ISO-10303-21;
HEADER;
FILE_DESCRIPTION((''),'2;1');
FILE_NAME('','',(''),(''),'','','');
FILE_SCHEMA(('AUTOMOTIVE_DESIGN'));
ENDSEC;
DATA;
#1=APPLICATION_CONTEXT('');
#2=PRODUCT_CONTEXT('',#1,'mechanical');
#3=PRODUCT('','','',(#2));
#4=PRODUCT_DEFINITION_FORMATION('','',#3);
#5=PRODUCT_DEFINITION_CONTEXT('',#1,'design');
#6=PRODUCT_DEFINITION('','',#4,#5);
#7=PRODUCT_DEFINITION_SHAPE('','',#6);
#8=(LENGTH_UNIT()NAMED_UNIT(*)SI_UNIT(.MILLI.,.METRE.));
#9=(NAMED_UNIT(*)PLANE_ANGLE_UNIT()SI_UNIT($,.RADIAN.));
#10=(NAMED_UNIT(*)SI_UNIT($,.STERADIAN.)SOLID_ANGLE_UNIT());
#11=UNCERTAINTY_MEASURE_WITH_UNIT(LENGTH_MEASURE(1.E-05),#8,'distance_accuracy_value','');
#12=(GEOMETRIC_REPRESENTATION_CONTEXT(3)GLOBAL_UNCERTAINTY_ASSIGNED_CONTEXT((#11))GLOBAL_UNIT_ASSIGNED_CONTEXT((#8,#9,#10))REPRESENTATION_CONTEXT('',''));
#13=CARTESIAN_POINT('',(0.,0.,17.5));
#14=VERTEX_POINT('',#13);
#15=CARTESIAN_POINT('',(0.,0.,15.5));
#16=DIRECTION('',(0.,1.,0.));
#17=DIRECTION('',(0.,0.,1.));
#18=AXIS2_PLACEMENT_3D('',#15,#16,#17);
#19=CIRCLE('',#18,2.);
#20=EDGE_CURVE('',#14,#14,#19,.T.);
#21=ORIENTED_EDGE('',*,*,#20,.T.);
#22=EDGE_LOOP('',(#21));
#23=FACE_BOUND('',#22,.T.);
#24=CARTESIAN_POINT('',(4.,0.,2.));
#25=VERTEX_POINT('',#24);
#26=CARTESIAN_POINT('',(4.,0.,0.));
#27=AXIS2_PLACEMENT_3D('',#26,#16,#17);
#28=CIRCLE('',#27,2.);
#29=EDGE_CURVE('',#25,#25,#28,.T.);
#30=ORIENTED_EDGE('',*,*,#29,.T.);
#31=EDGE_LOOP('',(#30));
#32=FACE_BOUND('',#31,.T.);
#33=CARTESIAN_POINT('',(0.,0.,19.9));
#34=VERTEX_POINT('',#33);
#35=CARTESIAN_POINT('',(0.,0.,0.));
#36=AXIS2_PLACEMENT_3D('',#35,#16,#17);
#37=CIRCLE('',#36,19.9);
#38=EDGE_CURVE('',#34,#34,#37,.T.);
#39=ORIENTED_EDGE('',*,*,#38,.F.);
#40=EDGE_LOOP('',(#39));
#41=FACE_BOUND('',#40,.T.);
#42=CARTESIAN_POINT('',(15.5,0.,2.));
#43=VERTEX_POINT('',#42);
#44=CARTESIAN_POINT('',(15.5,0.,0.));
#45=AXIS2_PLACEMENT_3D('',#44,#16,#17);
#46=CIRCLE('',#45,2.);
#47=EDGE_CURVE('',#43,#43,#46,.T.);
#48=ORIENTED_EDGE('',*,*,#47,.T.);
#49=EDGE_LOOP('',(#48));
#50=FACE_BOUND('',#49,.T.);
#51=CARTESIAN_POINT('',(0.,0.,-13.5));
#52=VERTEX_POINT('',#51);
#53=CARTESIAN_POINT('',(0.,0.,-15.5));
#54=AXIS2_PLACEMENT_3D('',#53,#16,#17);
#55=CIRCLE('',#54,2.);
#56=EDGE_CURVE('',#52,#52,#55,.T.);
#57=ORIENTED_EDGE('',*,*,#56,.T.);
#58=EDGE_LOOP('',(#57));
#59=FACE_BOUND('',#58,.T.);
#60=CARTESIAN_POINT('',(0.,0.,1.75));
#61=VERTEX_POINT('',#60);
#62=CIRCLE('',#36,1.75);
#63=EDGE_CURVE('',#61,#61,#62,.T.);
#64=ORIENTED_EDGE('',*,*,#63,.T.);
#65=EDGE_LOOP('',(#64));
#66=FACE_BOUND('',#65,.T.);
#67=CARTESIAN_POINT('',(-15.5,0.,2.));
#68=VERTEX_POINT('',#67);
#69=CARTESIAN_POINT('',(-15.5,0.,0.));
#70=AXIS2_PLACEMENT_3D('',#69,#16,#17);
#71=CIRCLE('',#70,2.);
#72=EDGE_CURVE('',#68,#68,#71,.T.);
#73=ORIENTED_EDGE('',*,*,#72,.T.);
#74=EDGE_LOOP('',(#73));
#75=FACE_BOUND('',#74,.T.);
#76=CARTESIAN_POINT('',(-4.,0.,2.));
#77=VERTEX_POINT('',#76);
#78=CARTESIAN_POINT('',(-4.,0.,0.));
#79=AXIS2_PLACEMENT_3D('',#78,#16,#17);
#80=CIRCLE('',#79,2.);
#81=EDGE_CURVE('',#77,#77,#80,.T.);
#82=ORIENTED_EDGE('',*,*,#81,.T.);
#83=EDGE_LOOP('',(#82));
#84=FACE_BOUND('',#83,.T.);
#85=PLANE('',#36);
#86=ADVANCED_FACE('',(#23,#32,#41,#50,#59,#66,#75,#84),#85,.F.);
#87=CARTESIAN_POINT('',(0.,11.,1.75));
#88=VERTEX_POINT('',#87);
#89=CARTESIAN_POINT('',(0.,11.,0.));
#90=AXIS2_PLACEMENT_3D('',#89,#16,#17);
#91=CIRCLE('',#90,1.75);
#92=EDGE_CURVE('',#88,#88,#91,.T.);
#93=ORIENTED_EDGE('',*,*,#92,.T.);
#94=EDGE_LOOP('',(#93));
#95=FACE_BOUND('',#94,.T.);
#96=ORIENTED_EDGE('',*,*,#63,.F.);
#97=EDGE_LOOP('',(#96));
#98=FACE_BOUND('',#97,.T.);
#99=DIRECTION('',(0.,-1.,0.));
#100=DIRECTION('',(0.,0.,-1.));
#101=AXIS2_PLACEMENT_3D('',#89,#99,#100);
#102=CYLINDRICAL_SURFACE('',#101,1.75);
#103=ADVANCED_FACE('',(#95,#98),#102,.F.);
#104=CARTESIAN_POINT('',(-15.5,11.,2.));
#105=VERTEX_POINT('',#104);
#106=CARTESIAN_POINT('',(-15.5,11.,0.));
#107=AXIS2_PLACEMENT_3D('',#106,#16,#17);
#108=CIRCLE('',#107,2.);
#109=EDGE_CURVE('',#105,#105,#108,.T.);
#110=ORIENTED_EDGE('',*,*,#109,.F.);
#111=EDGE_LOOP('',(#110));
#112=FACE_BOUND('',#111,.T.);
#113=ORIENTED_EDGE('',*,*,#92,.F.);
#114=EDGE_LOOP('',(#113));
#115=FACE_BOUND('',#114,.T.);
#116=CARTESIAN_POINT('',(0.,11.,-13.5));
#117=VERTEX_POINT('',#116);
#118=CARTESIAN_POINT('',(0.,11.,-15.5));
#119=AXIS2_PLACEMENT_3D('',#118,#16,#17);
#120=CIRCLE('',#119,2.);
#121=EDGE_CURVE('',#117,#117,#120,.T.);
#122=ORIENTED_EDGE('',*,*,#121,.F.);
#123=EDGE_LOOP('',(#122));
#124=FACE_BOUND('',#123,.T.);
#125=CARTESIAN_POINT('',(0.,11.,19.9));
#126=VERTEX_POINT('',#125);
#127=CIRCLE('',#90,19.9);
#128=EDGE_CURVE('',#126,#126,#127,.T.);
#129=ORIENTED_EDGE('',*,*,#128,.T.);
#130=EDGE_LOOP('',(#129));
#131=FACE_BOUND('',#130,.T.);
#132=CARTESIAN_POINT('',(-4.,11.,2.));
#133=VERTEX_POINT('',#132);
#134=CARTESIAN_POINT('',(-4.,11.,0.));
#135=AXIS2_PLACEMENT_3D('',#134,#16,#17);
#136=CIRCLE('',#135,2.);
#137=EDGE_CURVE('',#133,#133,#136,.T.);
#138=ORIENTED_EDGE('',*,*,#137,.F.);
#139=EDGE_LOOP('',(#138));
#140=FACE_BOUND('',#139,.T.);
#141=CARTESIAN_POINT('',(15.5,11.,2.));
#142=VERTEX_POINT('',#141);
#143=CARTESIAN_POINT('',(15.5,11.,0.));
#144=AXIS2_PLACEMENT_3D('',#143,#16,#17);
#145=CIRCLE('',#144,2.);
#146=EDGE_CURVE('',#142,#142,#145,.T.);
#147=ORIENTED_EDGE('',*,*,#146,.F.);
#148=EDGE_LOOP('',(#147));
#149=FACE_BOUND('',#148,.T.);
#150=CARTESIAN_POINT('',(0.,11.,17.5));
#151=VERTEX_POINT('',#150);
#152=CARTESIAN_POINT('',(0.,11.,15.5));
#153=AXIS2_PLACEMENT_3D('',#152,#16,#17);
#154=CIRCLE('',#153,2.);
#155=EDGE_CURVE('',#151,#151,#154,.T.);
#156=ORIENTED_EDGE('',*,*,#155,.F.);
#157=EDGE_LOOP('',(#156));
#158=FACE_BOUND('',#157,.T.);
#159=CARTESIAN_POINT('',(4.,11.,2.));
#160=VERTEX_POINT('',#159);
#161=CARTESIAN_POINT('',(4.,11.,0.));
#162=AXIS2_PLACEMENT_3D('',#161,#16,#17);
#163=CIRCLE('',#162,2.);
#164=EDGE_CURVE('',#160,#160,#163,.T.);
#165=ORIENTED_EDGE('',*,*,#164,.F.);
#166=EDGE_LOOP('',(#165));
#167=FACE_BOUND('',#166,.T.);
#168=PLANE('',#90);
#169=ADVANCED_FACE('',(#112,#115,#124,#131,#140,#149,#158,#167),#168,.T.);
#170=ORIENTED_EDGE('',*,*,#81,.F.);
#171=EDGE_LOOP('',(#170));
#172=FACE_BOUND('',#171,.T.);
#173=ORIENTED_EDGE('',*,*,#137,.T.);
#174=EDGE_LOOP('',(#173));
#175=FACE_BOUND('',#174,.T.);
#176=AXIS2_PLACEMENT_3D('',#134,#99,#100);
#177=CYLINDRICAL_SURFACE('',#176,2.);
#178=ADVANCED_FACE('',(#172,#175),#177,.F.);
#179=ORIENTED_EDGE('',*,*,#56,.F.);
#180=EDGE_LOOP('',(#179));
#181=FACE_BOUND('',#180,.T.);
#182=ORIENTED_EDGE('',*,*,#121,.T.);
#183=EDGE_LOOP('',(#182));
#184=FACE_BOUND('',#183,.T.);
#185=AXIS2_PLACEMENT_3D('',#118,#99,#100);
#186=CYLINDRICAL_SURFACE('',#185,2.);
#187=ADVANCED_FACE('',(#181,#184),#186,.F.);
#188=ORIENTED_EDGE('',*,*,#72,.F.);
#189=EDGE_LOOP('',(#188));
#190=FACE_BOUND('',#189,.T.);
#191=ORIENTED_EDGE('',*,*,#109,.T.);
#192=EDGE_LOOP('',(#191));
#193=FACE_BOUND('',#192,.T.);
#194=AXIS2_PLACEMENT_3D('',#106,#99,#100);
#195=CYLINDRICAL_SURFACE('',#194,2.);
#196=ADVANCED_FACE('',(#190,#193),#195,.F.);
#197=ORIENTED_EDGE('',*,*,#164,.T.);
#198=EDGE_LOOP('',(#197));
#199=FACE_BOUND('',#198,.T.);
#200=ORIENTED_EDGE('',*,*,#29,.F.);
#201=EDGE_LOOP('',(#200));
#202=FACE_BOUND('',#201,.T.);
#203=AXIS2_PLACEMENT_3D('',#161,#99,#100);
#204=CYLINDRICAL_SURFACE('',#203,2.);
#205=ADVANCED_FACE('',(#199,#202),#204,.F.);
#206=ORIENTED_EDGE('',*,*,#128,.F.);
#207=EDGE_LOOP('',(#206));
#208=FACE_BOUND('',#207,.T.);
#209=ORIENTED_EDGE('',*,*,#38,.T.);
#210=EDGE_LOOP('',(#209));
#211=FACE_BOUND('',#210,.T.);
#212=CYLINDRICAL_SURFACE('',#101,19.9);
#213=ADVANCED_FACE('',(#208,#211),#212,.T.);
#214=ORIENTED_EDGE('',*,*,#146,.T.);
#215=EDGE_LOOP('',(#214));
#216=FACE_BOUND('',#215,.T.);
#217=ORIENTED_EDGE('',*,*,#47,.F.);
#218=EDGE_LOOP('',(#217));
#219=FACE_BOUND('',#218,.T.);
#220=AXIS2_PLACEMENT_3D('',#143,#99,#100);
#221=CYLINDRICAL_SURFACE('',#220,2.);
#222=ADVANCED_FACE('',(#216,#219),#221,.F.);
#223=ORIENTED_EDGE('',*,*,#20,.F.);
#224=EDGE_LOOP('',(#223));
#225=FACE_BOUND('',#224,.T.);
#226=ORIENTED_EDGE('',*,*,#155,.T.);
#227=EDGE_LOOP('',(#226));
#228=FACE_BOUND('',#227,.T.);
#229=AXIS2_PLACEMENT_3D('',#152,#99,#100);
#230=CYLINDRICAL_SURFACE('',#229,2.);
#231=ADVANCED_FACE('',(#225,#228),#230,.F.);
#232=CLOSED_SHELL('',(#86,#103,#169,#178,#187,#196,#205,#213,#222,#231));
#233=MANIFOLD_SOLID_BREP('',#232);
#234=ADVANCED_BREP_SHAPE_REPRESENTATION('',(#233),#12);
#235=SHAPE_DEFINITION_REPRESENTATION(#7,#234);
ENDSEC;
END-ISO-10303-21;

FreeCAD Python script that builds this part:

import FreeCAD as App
import Part
import Sketcher

V = App.Vector

doc = App.newDocument("Part")
body = doc.addObject("PartDesign::Body", "Body")

sketch1 = doc.addObject("Sketcher::SketchObject", "Sketch")
body.addObject(sketch1)
sketch1.AttachmentSupport = (doc.XZ_Plane, [""])
sketch1.MapMode = "FlatFace"
sketch1.addGeometry(Part.Circle(V(0, 0, 0), V(0, 0, 1), 19.9), False)
sketch1.addGeometry(Part.Circle(V(0, -15.5, 0), V(0, 0, 1), 2), False)
sketch1.addGeometry(Part.Circle(V(-15.5, 0, 0), V(0, 0, 1), 2), False)
sketch1.addGeometry(Part.Circle(V(-4, 0, 0), V(0, 0, 1), 2), False)
sketch1.addGeometry(Part.Circle(V(15.5, 0, 0), V(0, 0, 1), 2), False)
sketch1.addGeometry(Part.Circle(V(0, 0, 0), V(0, 0, 1), 1.75), False)
sketch1.addGeometry(Part.Circle(V(4, 0, 0), V(0, 0, 1), 2), False)
sketch1.addGeometry(Part.Circle(V(0, 15.5, 0), V(0, 0, 1), 2), False)
sketch1.addConstraint(Sketcher.Constraint("Coincident", 0, 3, -1, 1))
sketch1.addConstraint(Sketcher.Constraint("Coincident", 5, 3, -1, 1))
sketch1.addConstraint(Sketcher.Constraint("Equal", 1, 2))
sketch1.addConstraint(Sketcher.Constraint("Equal", 2, 3))
sketch1.addConstraint(Sketcher.Constraint("Equal", 3, 4))
sketch1.addConstraint(Sketcher.Constraint("Equal", 4, 6))
sketch1.addConstraint(Sketcher.Constraint("Equal", 6, 7))
sketch1.addConstraint(Sketcher.Constraint("Symmetric", 2, 3, 4, 3, -1, 1))
sketch1.addConstraint(Sketcher.Constraint("Symmetric", 3, 3, 6, 3, -1, 1))
sketch1.addConstraint(Sketcher.Constraint("Symmetric", 1, 3, 7, 3, -1, 1))
sketch1.addConstraint(Sketcher.Constraint("PointOnObject", 1, 3, -2))
sketch1.addConstraint(Sketcher.Constraint("PointOnObject", 2, 3, -1))
sketch1.addConstraint(Sketcher.Constraint("PointOnObject", 3, 3, -1))
sketch1.addConstraint(Sketcher.Constraint("Diameter", 1, 4.0))
sketch1.addConstraint(Sketcher.Constraint("Diameter", 0, 39.8))
sketch1.addConstraint(Sketcher.Constraint("Diameter", 5, 3.5))
sketch1.addConstraint(Sketcher.Constraint("DistanceX", 3, 3, -1, 1, 4.0))
sketch1.addConstraint(Sketcher.Constraint("DistanceX", 2, 3, 4, 3, 31.0))
sketch1.addConstraint(Sketcher.Constraint("DistanceY", 1, 3, -1, 1, 15.5))
pad1 = doc.addObject("PartDesign::Pad", "Pad")
body.addObject(pad1)
pad1.Profile = sketch1
pad1.Length = 11
pad1.Reversed = True

doc.recompute()
